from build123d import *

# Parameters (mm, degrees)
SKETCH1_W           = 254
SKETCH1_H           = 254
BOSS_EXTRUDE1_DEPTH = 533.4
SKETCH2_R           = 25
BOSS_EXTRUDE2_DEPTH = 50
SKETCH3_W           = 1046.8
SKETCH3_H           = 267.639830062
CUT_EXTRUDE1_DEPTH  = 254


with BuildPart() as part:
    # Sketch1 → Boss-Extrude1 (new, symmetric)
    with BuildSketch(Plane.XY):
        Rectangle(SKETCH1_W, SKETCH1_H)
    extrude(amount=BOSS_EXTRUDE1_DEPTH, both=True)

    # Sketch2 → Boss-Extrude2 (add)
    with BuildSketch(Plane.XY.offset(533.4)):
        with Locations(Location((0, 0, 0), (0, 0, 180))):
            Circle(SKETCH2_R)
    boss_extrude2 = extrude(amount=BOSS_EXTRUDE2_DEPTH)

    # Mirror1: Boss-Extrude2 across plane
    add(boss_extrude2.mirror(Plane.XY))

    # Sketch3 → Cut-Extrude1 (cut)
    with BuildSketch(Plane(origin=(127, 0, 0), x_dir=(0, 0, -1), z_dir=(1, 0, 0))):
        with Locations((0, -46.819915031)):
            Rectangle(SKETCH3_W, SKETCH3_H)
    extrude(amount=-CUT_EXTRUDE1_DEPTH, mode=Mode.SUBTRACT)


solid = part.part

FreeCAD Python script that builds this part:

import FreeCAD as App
import Part
import Sketcher
from FreeCAD import Vector

doc = App.newDocument("Part")
body = doc.addObject("PartDesign::Body", "Body")

# Sketch on XY plane
sketch1 = body.newObject("Sketcher::SketchObject", "Sketch")
sketch1.AttachmentSupport = (doc.getObject("XY_Plane"), [""])
sketch1.MapMode = "FlatFace"
sketch1.addGeometry(Part.LineSegment(Vector(-127, 127, 0), Vector(-127, -127, 0)), False)
sketch1.addGeometry(Part.LineSegment(Vector(-127, -127, 0), Vector(127, -127, 0)), False)
sketch1.addGeometry(Part.LineSegment(Vector(127, -127, 0), Vector(127, 127, 0)), False)
sketch1.addGeometry(Part.LineSegment(Vector(127, 127, 0), Vector(-127, 127, 0)), False)
sketch1.addConstraint(Sketcher.Constraint("Coincident", 0, 2, 1, 1))
sketch1.addConstraint(Sketcher.Constraint("Coincident", 1, 2, 2, 1))
sketch1.addConstraint(Sketcher.Constraint("Coincident", 2, 2, 3, 1))
sketch1.addConstraint(Sketcher.Constraint("Coincident", 3, 2, 0, 1))
sketch1.addConstraint(Sketcher.Constraint("Vertical", 0))
sketch1.addConstraint(Sketcher.Constraint("Horizontal", 1))
sketch1.addConstraint(Sketcher.Constraint("Vertical", 2))
sketch1.addConstraint(Sketcher.Constraint("Horizontal", 3))
sketch1.addConstraint(Sketcher.Constraint("Symmetric", 0, 2, 2, 2, -1, 1))
sketch1.addConstraint(Sketcher.Constraint("Equal", 3, 0))
sketch1.addConstraint(Sketcher.Constraint("DistanceX", 1, 1, 1, 2, 254.0))
pad1 = body.newObject("PartDesign::Pad", "Pad")
pad1.Profile = sketch1
pad1.Length = 1066.8
pad1.Midplane = True

# Sketch on XY plane
sketch2 = body.newObject("Sketcher::SketchObject", "Sketch001")
sketch2.AttachmentSupport = (doc.getObject("XY_Plane"), [""])
sketch2.MapMode = "FlatFace"
sketch2.AttachmentOffset = App.Placement(Vector(0, 0, 533.4), App.Rotation())
sketch2.addGeometry(Part.Circle(Vector(0, 0, 0), Vector(0, 0, 1), 25), False)
sketch2.addConstraint(Sketcher.Constraint("Coincident", 0, 3, -1, 1))
sketch2.addConstraint(Sketcher.Constraint("Diameter", 0, 50.0))
pad2 = body.newObject("PartDesign::Pad", "Pad001")
pad2.Profile = sketch2
pad2.Length = 50
doc.recompute()

mirrored = body.newObject("PartDesign::Mirrored", "Mirrored")
mirrored.Originals = [pad2]
mirrored.MirrorPlane = (doc.getObject("XY_Plane"), [""])
body.Tip = mirrored

# Sketch on YZ plane
sketch3 = body.newObject("Sketcher::SketchObject", "Sketch002")
sketch3.AttachmentSupport = (doc.getObject("YZ_Plane"), [""])
sketch3.MapMode = "FlatFace"
sketch3.AttachmentOffset = App.Placement(Vector(0, 0, 127), App.Rotation())
sketch3.addGeometry(Part.LineSegment(Vector(87, 523, 0), Vector(-181, 523, 0)), False)
sketch3.addGeometry(Part.LineSegment(Vector(-181, 523, 0), Vector(-181, -523, 0)), False)
sketch3.addGeometry(Part.LineSegment(Vector(-181, -523, 0), Vector(87, -523, 0)), False)
sketch3.addGeometry(Part.LineSegment(Vector(87, -523, 0), Vector(87, 523, 0)), False)
sketch3.addConstraint(Sketcher.Constraint("Coincident", 0, 2, 1, 1))
sketch3.addConstraint(Sketcher.Constraint("Coincident", 1, 2, 2, 1))
sketch3.addConstraint(Sketcher.Constraint("Coincident", 2, 2, 3, 1))
sketch3.addConstraint(Sketcher.Constraint("Coincident", 3, 2, 0, 1))
sketch3.addConstraint(Sketcher.Constraint("Horizontal", 0))
sketch3.addConstraint(Sketcher.Constraint("Vertical", 1))
sketch3.addConstraint(Sketcher.Constraint("Horizontal", 2))
sketch3.addConstraint(Sketcher.Constraint("Vertical", 3))
sketch3.addConstraint(Sketcher.Constraint("DistanceY", 1, 2, 1, 1, 1046.8))
sketch3.addConstraint(Sketcher.Constraint("DistanceX", -1, 1, 2, 2, 87.0))
sketch3.addConstraint(Sketcher.Constraint("DistanceY", -1, 1, 0, 2, 523.4))
sketch3.addConstraint(Sketcher.Constraint("DistanceX", 0, 2, 0, 1, 267.63983))
pocket1 = body.newObject("PartDesign::Pocket", "Pocket")
pocket1.Profile = sketch3
pocket1.Length = 254

doc.recompute()
